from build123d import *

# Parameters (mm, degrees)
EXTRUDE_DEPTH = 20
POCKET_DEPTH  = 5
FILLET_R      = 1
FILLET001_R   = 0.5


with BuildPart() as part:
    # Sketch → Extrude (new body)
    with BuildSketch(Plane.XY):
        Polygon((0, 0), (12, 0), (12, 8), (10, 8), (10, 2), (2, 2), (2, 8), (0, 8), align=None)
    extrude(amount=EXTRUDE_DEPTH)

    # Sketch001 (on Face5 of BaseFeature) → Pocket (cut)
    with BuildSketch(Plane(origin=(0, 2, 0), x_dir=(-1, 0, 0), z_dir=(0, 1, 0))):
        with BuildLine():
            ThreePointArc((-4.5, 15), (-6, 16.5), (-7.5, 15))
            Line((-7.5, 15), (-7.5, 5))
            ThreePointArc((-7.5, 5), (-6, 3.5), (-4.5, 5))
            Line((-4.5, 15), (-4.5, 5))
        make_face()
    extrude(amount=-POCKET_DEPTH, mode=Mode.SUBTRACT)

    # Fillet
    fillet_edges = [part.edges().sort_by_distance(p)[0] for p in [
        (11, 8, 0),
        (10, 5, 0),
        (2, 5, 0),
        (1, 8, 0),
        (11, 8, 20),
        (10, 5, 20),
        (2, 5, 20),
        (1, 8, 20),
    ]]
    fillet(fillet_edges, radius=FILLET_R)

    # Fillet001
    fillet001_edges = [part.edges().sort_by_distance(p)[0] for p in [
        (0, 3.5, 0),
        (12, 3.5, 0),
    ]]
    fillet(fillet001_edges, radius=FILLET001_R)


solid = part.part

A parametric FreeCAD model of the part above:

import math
import FreeCAD as App
import Part
import Sketcher

V = App.Vector


def edges_at(feature, points):
    """Names of the edges that pass closest to the given points."""
    edges = feature.Shape.Edges
    near = lambda p: min(range(len(edges)), key=lambda i: edges[i].distToShape(Part.Vertex(*p))[0])
    return sorted({f"Edge{near(p) + 1}" for p in points})

doc = App.newDocument("Part")
body = doc.addObject("PartDesign::Body", "Body")

sketch1 = body.newObject("Sketcher::SketchObject", "Sketch")
sketch1.AttachmentSupport = (doc.getObject("XY_Plane"), [""])
sketch1.MapMode = "FlatFace"
sketch1.addGeometry(Part.LineSegment(V(0, 0, 0), V(12, 0, 0)), False)
sketch1.addGeometry(Part.LineSegment(V(12, 0, 0), V(12, 8, 0)), False)
sketch1.addGeometry(Part.LineSegment(V(12, 8, 0), V(10, 8, 0)), False)
sketch1.addGeometry(Part.LineSegment(V(10, 8, 0), V(10, 2, 0)), False)
sketch1.addGeometry(Part.LineSegment(V(10, 2, 0), V(2, 2, 0)), False)
sketch1.addGeometry(Part.LineSegment(V(2, 2, 0), V(2, 8, 0)), False)
sketch1.addGeometry(Part.LineSegment(V(2, 8, 0), V(0, 8, 0)), False)
sketch1.addGeometry(Part.LineSegment(V(0, 8, 0), V(0, 0, 0)), False)
sketch1.addConstraint(Sketcher.Constraint("Coincident", 0, 2, 1, 1))
sketch1.addConstraint(Sketcher.Constraint("Coincident", 1, 2, 2, 1))
sketch1.addConstraint(Sketcher.Constraint("Coincident", 2, 2, 3, 1))
sketch1.addConstraint(Sketcher.Constraint("Coincident", 3, 2, 4, 1))
sketch1.addConstraint(Sketcher.Constraint("Coincident", 4, 2, 5, 1))
sketch1.addConstraint(Sketcher.Constraint("Coincident", 5, 2, 6, 1))
sketch1.addConstraint(Sketcher.Constraint("Coincident", 6, 2, 7, 1))
sketch1.addConstraint(Sketcher.Constraint("Coincident", 7, 2, 0, 1))
sketch1.addConstraint(Sketcher.Constraint("Horizontal", 0))
sketch1.addConstraint(Sketcher.Constraint("Vertical", 1))
sketch1.addConstraint(Sketcher.Constraint("Horizontal", 2))
sketch1.addConstraint(Sketcher.Constraint("Vertical", 3))
sketch1.addConstraint(Sketcher.Constraint("Horizontal", 4))
sketch1.addConstraint(Sketcher.Constraint("Vertical", 5))
sketch1.addConstraint(Sketcher.Constraint("Horizontal", 6))
sketch1.addConstraint(Sketcher.Constraint("Vertical", 7))
sketch1.addConstraint(Sketcher.Constraint("Coincident", 7, 2, -1, 1))
sketch1.addConstraint(Sketcher.Constraint("Horizontal", 2, 2, 5, 2))
sketch1.addConstraint(Sketcher.Constraint("Equal", 2, 6))
sketch1.addConstraint(Sketcher.Constraint("Equal", 4, 1))
sketch1.addConstraint(Sketcher.Constraint("DistanceX", 0, 1, 0, 2, 12.0))
sketch1.addConstraint(Sketcher.Constraint("DistanceX", 2, 2, 2, 1, 2.0))
sketch1.addConstraint(Sketcher.Constraint("DistanceY", 3, 2, 3, 1, 6.0))
pad1 = body.newObject("PartDesign::Pad", "Pad")
pad1.Profile = sketch1
pad1.Length = 20

sketch2 = body.newObject("Sketcher::SketchObject", "Sketch001")
sketch2.AttachmentSupport = (doc.getObject("XZ_Plane"), [""])
sketch2.MapMode = "FlatFace"
sketch2.AttachmentOffset = App.Placement(V(0, 0, -2), App.Rotation())
sketch2.addGeometry(Part.ArcOfCircle(Part.Circle(V(6, 15, 0), V(0, 0, 1), 1.5), math.radians(0), math.radians(180)), False)
sketch2.addGeometry(Part.LineSegment(V(7.5, 15, 0), V(7.5, 5, 0)), False)
sketch2.addGeometry(Part.ArcOfCircle(Part.Circle(V(6, 5, 0), V(0, 0, 1), 1.5), math.radians(180), math.radians(360)), False)
sketch2.addGeometry(Part.LineSegment(V(4.5, 5, 0), V(4.5, 15, 0)), False)
sketch2.addConstraint(Sketcher.Constraint("Tangent", 0, 1, 1, 1))
sketch2.addConstraint(Sketcher.Constraint("Tangent", 1, 2, 2, 2))
sketch2.addConstraint(Sketcher.Constraint("Tangent", 2, 1, 3, 1))
sketch2.addConstraint(Sketcher.Constraint("Tangent", 3, 2, 0, 2))
sketch2.addConstraint(Sketcher.Constraint("Vertical", 1))
sketch2.addConstraint(Sketcher.Constraint("Vertical", 3))
sketch2.addConstraint(Sketcher.Constraint("Radius", 0, 1.5))
sketch2.addConstraint(Sketcher.Constraint("DistanceY", 1, 2, 1, 1, 10.0))
sketch2.addConstraint(Sketcher.Constraint("DistanceX", -1, 1, 0, 3, 6.0))
sketch2.addConstraint(Sketcher.Constraint("DistanceY", -1, 1, 0, 3, 15.0))
pocket1 = body.newObject("PartDesign::Pocket", "Pocket")
pocket1.Profile = sketch2
pocket1.Length = 5
pocket1.Reversed = True
doc.recompute()

fillet = body.newObject("PartDesign::Fillet", "Fillet")
fillet.Base = (pocket1, edges_at(pocket1, [
    (11, 8, 0),
    (10, 5, 0),
    (2, 5, 0),
    (1, 8, 0),
    (11, 8, 20),
    (10, 5, 20),
    (2, 5, 20),
    (1, 8, 20),
]))
fillet.Radius = 1
doc.recompute()

fillet2 = body.newObject("PartDesign::Fillet", "Fillet001")
fillet2.Base = (fillet, edges_at(fillet, [(0, 3.5, 0), (12, 3.5, 0)]))
fillet2.Radius = 0.5

doc.recompute()
